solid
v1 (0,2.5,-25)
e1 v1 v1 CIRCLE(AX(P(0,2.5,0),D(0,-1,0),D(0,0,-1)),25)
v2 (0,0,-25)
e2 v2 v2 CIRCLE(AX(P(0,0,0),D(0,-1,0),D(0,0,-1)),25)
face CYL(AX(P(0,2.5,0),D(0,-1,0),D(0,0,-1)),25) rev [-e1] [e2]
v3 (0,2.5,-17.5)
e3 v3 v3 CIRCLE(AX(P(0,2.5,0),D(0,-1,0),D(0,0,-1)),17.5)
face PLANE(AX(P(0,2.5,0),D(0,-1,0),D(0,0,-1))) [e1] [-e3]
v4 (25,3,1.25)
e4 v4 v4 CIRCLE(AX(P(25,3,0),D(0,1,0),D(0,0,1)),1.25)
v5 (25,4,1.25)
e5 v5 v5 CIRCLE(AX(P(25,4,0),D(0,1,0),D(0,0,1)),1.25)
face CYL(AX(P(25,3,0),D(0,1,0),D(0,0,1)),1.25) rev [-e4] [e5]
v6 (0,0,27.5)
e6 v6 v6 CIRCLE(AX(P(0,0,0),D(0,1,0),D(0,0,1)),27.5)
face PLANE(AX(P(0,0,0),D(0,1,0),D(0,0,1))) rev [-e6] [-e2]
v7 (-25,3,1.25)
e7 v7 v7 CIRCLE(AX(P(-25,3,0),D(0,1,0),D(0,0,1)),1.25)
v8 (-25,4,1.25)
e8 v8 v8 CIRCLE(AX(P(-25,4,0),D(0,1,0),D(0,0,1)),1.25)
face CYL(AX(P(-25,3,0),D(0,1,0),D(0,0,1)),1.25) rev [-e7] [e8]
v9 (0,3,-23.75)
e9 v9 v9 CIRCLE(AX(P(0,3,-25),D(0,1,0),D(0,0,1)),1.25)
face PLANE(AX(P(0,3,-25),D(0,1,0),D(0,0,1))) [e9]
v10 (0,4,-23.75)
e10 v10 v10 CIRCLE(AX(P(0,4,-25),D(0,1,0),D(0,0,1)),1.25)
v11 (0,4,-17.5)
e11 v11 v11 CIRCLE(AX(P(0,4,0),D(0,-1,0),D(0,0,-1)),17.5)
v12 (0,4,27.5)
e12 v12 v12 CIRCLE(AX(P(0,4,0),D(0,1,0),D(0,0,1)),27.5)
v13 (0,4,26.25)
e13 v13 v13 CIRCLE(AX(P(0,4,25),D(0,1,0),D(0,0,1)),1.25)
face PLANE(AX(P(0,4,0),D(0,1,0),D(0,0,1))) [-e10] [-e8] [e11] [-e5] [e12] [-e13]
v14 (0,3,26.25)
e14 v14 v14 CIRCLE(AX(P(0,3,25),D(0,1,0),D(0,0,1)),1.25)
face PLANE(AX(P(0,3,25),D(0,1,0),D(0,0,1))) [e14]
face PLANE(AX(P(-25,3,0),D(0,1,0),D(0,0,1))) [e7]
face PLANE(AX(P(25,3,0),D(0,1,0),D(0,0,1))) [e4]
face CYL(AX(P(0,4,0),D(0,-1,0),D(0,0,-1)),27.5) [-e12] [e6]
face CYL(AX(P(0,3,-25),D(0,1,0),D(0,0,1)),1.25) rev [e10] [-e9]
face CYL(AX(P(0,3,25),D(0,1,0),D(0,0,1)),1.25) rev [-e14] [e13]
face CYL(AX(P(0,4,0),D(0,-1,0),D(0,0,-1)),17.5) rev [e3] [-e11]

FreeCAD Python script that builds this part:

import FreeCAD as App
import Part
import Sketcher

V = App.Vector

doc = App.newDocument("Part")
body = doc.addObject("PartDesign::Body", "Body")

# Sketch on XZ plane
sketch1 = body.newObject("Sketcher::SketchObject", "Sketch")
sketch1.AttachmentSupport = (doc.getObject("XZ_Plane"), [""])
sketch1.MapMode = "FlatFace"
sketch1.addGeometry(Part.Circle(V(0, 0, 0), V(0, 0, 1), 27.5), False)
sketch1.addConstraint([
    Sketcher.Constraint("Coincident", 0, 3, -1, 1),
    Sketcher.Constraint("Diameter", 0, 55.0),
])
pad1 = body.newObject("PartDesign::Pad", "Pad")
pad1.Profile = sketch1
pad1.Length = 4
pad1.Reversed = True

# Sketch on XZ plane
sketch2 = body.newObject("Sketcher::SketchObject", "Sketch001")
sketch2.AttachmentSupport = (doc.getObject("XZ_Plane"), [""])
sketch2.MapMode = "FlatFace"
sketch2.AttachmentOffset = App.Placement(V(0, 0, -4), App.Rotation())
sketch2.addGeometry([
    Part.Circle(V(0, -25, 0), V(0, 0, 1), 1.25),
    Part.Circle(V(25, 0, 0), V(0, 0, 1), 1.25),
    Part.Circle(V(0, 25, 0), V(0, 0, 1), 1.25),
    Part.Circle(V(-25, 0, 0), V(0, 0, 1), 1.25),
], False)
sketch2.addConstraint([
    Sketcher.Constraint("Equal", 0, 1),
    Sketcher.Constraint("Equal", 1, 2),
    Sketcher.Constraint("Equal", 2, 3),
    Sketcher.Constraint("Symmetric", 0, 3, 2, 3, -1, 1),
    Sketcher.Constraint("Symmetric", 1, 3, 3, 3, -1, 1),
    Sketcher.Constraint("PointOnObject", 0, 3, -2),
    Sketcher.Constraint("PointOnObject", 1, 3, -1),
    Sketcher.Constraint("Diameter", 0, 2.5),
    Sketcher.Constraint("DistanceY", 0, 3, -1, 1, 25.0),
    Sketcher.Constraint("DistanceX", -1, 1, 1, 3, 25.0),
])
pocket1 = body.newObject("PartDesign::Pocket", "Pocket")
pocket1.Profile = sketch2
pocket1.Length = 1
pocket1.Reversed = True

# Sketch on XZ plane
sketch3 = body.newObject("Sketcher::SketchObject", "Sketch002")
sketch3.AttachmentSupport = (doc.getObject("XZ_Plane"), [""])
sketch3.MapMode = "FlatFace"
sketch3.addGeometry(Part.Circle(V(0, 0, 0), V(0, 0, 1), 25), False)
sketch3.addConstraint([
    Sketcher.Constraint("Coincident", 0, 3, -1, 1),
    Sketcher.Constraint("Diameter", 0, 50.0),
])
pocket2 = body.newObject("PartDesign::Pocket", "Pocket001")
pocket2.Profile = sketch3
pocket2.Length = 2.5

# Sketch on XZ plane
sketch4 = body.newObject("Sketcher::SketchObject", "Sketch003")
sketch4.AttachmentSupport = (doc.getObject("XZ_Plane"), [""])
sketch4.MapMode = "FlatFace"
sketch4.AttachmentOffset = App.Placement(V(0, 0, -2.5), App.Rotation())
sketch4.addGeometry(Part.Circle(V(0, 0, 0), V(0, 0, 1), 17.5), False)
sketch4.addConstraint([
    Sketcher.Constraint("Coincident", 0, 3, -1, 1),
    Sketcher.Constraint("Diameter", 0, 35.0),
])
pocket3 = body.newObject("PartDesign::Pocket", "Pocket002")
pocket3.Profile = sketch4
pocket3.Type = "ThroughAll"

doc.recompute()
